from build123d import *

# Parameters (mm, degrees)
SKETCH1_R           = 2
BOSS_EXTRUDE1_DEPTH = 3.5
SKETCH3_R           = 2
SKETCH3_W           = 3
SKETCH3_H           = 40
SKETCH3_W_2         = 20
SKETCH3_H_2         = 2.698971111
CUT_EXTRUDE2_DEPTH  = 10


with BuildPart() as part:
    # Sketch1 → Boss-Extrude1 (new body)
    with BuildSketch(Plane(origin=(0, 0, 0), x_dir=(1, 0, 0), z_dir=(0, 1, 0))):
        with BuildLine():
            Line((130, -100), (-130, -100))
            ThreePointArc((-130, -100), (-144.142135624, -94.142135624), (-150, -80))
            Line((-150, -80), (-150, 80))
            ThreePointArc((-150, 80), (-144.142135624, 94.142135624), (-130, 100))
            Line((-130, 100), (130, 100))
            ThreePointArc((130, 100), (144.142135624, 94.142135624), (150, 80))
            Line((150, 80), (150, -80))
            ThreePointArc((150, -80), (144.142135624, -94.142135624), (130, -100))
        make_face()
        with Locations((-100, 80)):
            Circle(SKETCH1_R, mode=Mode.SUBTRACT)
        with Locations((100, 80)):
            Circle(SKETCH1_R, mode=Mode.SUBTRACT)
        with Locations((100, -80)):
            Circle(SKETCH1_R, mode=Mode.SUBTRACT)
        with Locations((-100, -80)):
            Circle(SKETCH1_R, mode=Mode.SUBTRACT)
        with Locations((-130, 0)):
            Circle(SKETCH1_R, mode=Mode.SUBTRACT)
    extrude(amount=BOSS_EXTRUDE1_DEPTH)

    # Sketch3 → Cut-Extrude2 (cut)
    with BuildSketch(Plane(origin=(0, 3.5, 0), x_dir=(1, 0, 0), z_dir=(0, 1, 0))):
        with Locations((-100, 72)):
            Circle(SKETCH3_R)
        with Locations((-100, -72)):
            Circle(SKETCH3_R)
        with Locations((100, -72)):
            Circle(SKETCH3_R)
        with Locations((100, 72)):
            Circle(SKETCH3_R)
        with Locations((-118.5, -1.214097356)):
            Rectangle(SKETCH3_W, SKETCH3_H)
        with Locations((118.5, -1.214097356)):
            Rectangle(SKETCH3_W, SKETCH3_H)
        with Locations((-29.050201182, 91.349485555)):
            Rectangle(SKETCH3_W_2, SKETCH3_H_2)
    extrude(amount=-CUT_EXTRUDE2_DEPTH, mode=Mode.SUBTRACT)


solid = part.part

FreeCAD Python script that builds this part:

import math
import FreeCAD as App
import Part
import Sketcher

V = App.Vector
Q = App.Units.Quantity

doc = App.newDocument("Part")
params = doc.addObject("Spreadsheet::Sheet", "Params")
for row, (alias, value) in enumerate([
    ("sketch1_diameter", "4 mm"),
    ("sketch1_radius", "20 mm"),
    ("sketch1_width", "260 mm"),
    ("sketch1_height", "160 mm"),
    ("pad1_length", "3.5 mm"),
    ("sketch2_diameter", "4 mm"),
    ("sketch2_width", "3 mm"),
    ("sketch2_width2", "20 mm"),
    ("sketch2_height", "40 mm"),
    ("pocket1_length", "10 mm"),
], start=1):
    params.set(f"A{row}", alias)
    params.set(f"B{row}", "=" + value)
    params.setAlias(f"B{row}", alias)

body = doc.addObject("PartDesign::Body", "Body")

sketch1 = body.newObject("Sketcher::SketchObject", "Sketch")
sketch1.AttachmentSupport = (doc.getObject("XZ_Plane"), [""])
sketch1.MapMode = "FlatFace"
sketch1.addGeometry([
    Part.LineSegment(V(-130, 100, 0), V(130, 100, 0)),
    Part.ArcOfCircle(Part.Circle(V(130, 80, 0), V(0, 0, 1), 20), math.radians(0), math.radians(90)),
    Part.LineSegment(V(150, 80, 0), V(150, -80, 0)),
    Part.ArcOfCircle(Part.Circle(V(130, -80, 0), V(0, 0, 1), 20), math.radians(-90), math.radians(0)),
    Part.LineSegment(V(130, -100, 0), V(-130, -100, 0)),
    Part.ArcOfCircle(Part.Circle(V(-130, -80, 0), V(0, 0, 1), 20), math.radians(180), math.radians(270)),
    Part.LineSegment(V(-150, -80, 0), V(-150, 80, 0)),
    Part.ArcOfCircle(Part.Circle(V(-130, 80, 0), V(0, 0, 1), 20), math.radians(90), math.radians(180)),
    Part.Circle(V(100, 80, 0), V(0, 0, 1), 2),
    Part.Circle(V(-100, 80, 0), V(0, 0, 1), 2),
    Part.Circle(V(100, -80, 0), V(0, 0, 1), 2),
    Part.Circle(V(-130, 0, 0), V(0, 0, 1), 2),
    Part.Circle(V(-100, -80, 0), V(0, 0, 1), 2),
], False)
sketch1.addConstraint([
    Sketcher.Constraint("Tangent", 0, 2, 1, 2),
    Sketcher.Constraint("Tangent", 1, 1, 2, 1),
    Sketcher.Constraint("Tangent", 2, 2, 3, 2),
    Sketcher.Constraint("Tangent", 3, 1, 4, 1),
    Sketcher.Constraint("Tangent", 4, 2, 5, 2),
    Sketcher.Constraint("Tangent", 5, 1, 6, 1),
    Sketcher.Constraint("Tangent", 6, 2, 7, 2),
    Sketcher.Constraint("Tangent", 7, 1, 0, 1),
    Sketcher.Constraint("Horizontal", 0),
    Sketcher.Constraint("Vertical", 2),
    Sketcher.Constraint("Horizontal", 4),
    Sketcher.Constraint("Vertical", 6),
    Sketcher.Constraint("Equal", 1, 3),
    Sketcher.Constraint("Equal", 3, 5),
    Sketcher.Constraint("Equal", 5, 7),
    Sketcher.Constraint("Equal", 8, 9),
    Sketcher.Constraint("Equal", 9, 10),
    Sketcher.Constraint("Equal", 10, 11),
    Sketcher.Constraint("Equal", 11, 12),
    Sketcher.Constraint("Symmetric", 1, 3, 5, 3, -1, 1),
    Sketcher.Constraint("Symmetric", 9, 3, 10, 3, -1, 1),
    Sketcher.Constraint("Symmetric", 8, 3, 12, 3, -1, 1),
    Sketcher.Constraint("Symmetric", 8, 3, 9, 3, -2),
    Sketcher.Constraint("PointOnObject", 11, 3, -1),
    Sketcher.Constraint("Horizontal", 7, 3, 8, 3),
    Sketcher.Constraint("Vertical", 7, 3, 11, 3),
    Sketcher.Constraint("Diameter", 8, Q("4 mm")),
    Sketcher.Constraint("Radius", 1, Q("20 mm")),
    Sketcher.Constraint("DistanceX", 0, 1, 0, 2, Q("260 mm")),
    Sketcher.Constraint("DistanceY", 2, 2, 2, 1, Q("160 mm")),
    Sketcher.Constraint("DistanceX", -1, 1, 8, 3, Q("100 mm")),
])
sketch1.setExpression("Constraints[26]", "Params.sketch1_diameter")
sketch1.setExpression("Constraints[27]", "Params.sketch1_radius")
sketch1.setExpression("Constraints[28]", "Params.sketch1_width")
sketch1.setExpression("Constraints[29]", "Params.sketch1_height")
pad1 = body.newObject("PartDesign::Pad", "Pad")
pad1.Profile = sketch1
pad1.setExpression("Length", "Params.pad1_length")
pad1.Reversed = True

sketch2 = body.newObject("Sketcher::SketchObject", "Sketch001")
sketch2.AttachmentSupport = (doc.getObject("XZ_Plane"), [""])
sketch2.MapMode = "FlatFace"
sketch2.AttachmentOffset = App.Placement(V(0, 0, -3.5), App.Rotation())
sketch2.addGeometry([
    Part.Circle(V(-100, -72, 0), V(0, 0, 1), 2),
    Part.Circle(V(-100, 72, 0), V(0, 0, 1), 2),
    Part.Circle(V(100, 72, 0), V(0, 0, 1), 2),
    Part.Circle(V(100, -72, 0), V(0, 0, 1), 2),
    Part.LineSegment(V(-120, -18.8, 0), V(-120, 21.2, 0)),
    Part.LineSegment(V(-120, 21.2, 0), V(-117, 21.2, 0)),
    Part.LineSegment(V(-117, 21.2, 0), V(-117, -18.8, 0)),
    Part.LineSegment(V(-117, -18.8, 0), V(-120, -18.8, 0)),
    Part.LineSegment(V(117, -18.8, 0), V(117, 21.2, 0)),
    Part.LineSegment(V(117, 21.2, 0), V(120, 21.2, 0)),
    Part.LineSegment(V(120, 21.2, 0), V(120, -18.8, 0)),
    Part.LineSegment(V(120, -18.8, 0), V(117, -18.8, 0)),
    Part.LineSegment(V(-39.1, -92.7, 0), V(-39.1, -90, 0)),
    Part.LineSegment(V(-39.1, -90, 0), V(-19.1, -90, 0)),
    Part.LineSegment(V(-19.1, -90, 0), V(-19.1, -92.7, 0)),
    Part.LineSegment(V(-19.1, -92.7, 0), V(-39.1, -92.7, 0)),
], False)
sketch2.addConstraint([
    Sketcher.Constraint("Coincident", 4, 2, 5, 1),
    Sketcher.Constraint("Coincident", 5, 2, 6, 1),
    Sketcher.Constraint("Coincident", 6, 2, 7, 1),
    Sketcher.Constraint("Coincident", 7, 2, 4, 1),
    Sketcher.Constraint("Coincident", 8, 2, 9, 1),
    Sketcher.Constraint("Coincident", 9, 2, 10, 1),
    Sketcher.Constraint("Coincident", 10, 2, 11, 1),
    Sketcher.Constraint("Coincident", 11, 2, 8, 1),
    Sketcher.Constraint("Coincident", 12, 2, 13, 1),
    Sketcher.Constraint("Coincident", 13, 2, 14, 1),
    Sketcher.Constraint("Coincident", 14, 2, 15, 1),
    Sketcher.Constraint("Coincident", 15, 2, 12, 1),
    Sketcher.Constraint("Vertical", 4),
    Sketcher.Constraint("Horizontal", 5),
    Sketcher.Constraint("Vertical", 6),
    Sketcher.Constraint("Horizontal", 7),
    Sketcher.Constraint("Vertical", 8),
    Sketcher.Constraint("Horizontal", 9),
    Sketcher.Constraint("Vertical", 10),
    Sketcher.Constraint("Horizontal", 11),
    Sketcher.Constraint("Vertical", 12),
    Sketcher.Constraint("Horizontal", 13),
    Sketcher.Constraint("Vertical", 14),
    Sketcher.Constraint("Horizontal", 15),
    Sketcher.Constraint("Equal", 0, 1),
    Sketcher.Constraint("Equal", 1, 2),
    Sketcher.Constraint("Equal", 2, 3),
    Sketcher.Constraint("Symmetric", 0, 3, 2, 3, -1, 1),
    Sketcher.Constraint("Symmetric", 1, 3, 3, 3, -1, 1),
    Sketcher.Constraint("Symmetric", 1, 3, 2, 3, -2),
    Sketcher.Constraint("Symmetric", 5, 2, 8, 2, -2),
    Sketcher.Constraint("Symmetric", 7, 2, 10, 2, -2),
    Sketcher.Constraint("Diameter", 0, Q("4 mm")),
    Sketcher.Constraint("DistanceX", 5, 1, 5, 2, Q("3 mm")),
    Sketcher.Constraint("DistanceX", 13, 1, 13, 2, Q("20 mm")),
    Sketcher.Constraint("DistanceY", 4, 1, 4, 2, Q("40 mm")),
    Sketcher.Constraint("DistanceX", 0, 3, -1, 1, Q("100 mm")),
    Sketcher.Constraint("DistanceY", 0, 3, -1, 1, Q("72 mm")),
    Sketcher.Constraint("DistanceX", 4, 2, -1, 1, Q("120 mm")),
    Sketcher.Constraint("DistanceY", 12, 2, -1, 1, Q("90 mm")),
    Sketcher.Constraint("DistanceY", 12, 1, 12, 2, Q("2.698971 mm")),
    Sketcher.Constraint("DistanceX", 12, 2, -1, 1, Q("39.050201 mm")),
    Sketcher.Constraint("DistanceY", 14, 2, 6, 2, Q("73.913068 mm")),
])
sketch2.setExpression("Constraints[32]", "Params.sketch2_diameter")
sketch2.setExpression("Constraints[33]", "Params.sketch2_width")
sketch2.setExpression("Constraints[34]", "Params.sketch2_width2")
sketch2.setExpression("Constraints[35]", "Params.sketch2_height")
pocket1 = body.newObject("PartDesign::Pocket", "Pocket")
pocket1.Profile = sketch2
pocket1.setExpression("Length", "Params.pocket1_length")
pocket1.Reversed = True

doc.recompute()
